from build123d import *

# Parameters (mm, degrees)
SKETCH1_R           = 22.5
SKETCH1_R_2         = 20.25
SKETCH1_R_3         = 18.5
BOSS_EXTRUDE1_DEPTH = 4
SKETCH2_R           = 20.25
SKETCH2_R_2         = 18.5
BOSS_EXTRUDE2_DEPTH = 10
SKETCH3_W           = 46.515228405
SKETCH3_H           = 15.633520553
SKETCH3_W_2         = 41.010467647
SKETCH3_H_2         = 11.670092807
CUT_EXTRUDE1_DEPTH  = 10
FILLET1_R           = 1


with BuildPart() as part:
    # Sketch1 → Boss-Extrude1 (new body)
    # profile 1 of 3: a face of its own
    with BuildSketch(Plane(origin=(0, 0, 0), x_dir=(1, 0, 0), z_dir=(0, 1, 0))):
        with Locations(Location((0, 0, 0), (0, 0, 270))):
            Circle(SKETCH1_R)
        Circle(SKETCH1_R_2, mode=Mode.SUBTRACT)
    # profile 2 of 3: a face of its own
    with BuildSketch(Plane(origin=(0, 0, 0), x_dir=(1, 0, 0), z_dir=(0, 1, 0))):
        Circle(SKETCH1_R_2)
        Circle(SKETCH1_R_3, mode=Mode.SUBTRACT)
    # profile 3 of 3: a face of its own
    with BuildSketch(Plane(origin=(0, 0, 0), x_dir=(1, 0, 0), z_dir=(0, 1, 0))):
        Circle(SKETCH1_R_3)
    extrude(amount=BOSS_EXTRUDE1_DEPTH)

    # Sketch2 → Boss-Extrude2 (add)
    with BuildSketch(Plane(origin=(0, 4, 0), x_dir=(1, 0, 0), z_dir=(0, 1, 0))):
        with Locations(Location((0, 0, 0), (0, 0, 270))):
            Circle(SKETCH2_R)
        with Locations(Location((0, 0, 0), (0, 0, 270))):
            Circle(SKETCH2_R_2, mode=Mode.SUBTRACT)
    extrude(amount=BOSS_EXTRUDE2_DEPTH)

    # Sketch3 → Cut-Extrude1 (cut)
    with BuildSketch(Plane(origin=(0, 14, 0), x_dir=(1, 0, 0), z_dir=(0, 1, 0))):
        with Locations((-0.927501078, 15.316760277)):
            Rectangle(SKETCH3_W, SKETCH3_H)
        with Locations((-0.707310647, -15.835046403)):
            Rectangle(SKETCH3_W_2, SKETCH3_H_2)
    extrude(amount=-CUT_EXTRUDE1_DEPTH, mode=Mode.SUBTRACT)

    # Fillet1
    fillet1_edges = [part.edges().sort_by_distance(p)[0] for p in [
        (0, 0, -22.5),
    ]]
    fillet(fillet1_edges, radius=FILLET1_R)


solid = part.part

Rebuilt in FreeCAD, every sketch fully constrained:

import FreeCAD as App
import Part
import Sketcher

V = App.Vector


def edges_at(feature, points):
    """Names of the edges that pass closest to the given points."""
    edges = feature.Shape.Edges
    near = lambda p: min(range(len(edges)), key=lambda i: edges[i].distToShape(Part.Vertex(*p))[0])
    return sorted({f"Edge{near(p) + 1}" for p in points})

doc = App.newDocument("Part")
params = doc.addObject("Spreadsheet::Sheet", "Params")
for row, (alias, value) in enumerate([
    ("sketch1_diameter", "45 mm"),
    ("pad1_length", "4 mm"),
    ("sketch2_diameter", "37 mm"),
    ("sketch2_diameter2", "40.5 mm"),
    ("pad2_length", "10 mm"),
    ("pocket1_length", "10 mm"),
    ("fillet_radius", "1 mm"),
], start=1):
    params.set(f"A{row}", alias)
    params.set(f"B{row}", "=" + value)
    params.setAlias(f"B{row}", alias)

body = doc.addObject("PartDesign::Body", "Body")

# Sketch on XZ plane
sketch1 = body.newObject("Sketcher::SketchObject", "Sketch")
sketch1.AttachmentSupport = (doc.getObject("XZ_Plane"), [""])
sketch1.MapMode = "FlatFace"
sketch1.addGeometry(Part.Circle(V(0, 0, 0), V(0, 0, 1), 22), False)
sketch1.addConstraint([
    Sketcher.Constraint("Coincident", 0, 3, -1, 1),
    Sketcher.Constraint("Diameter", 0, 45.0),
])
sketch1.setExpression("Constraints[1]", "Params.sketch1_diameter")
pad1 = body.newObject("PartDesign::Pad", "Pad")
pad1.Profile = sketch1
pad1.setExpression("Length", "Params.pad1_length")
pad1.Reversed = True

# Sketch on XZ plane
sketch2 = body.newObject("Sketcher::SketchObject", "Sketch001")
sketch2.AttachmentSupport = (doc.getObject("XZ_Plane"), [""])
sketch2.MapMode = "FlatFace"
sketch2.AttachmentOffset = App.Placement(V(0, 0, -4), App.Rotation())
sketch2.addGeometry([
    Part.Circle(V(0, 0, 0), V(0, 0, 1), 20),
    Part.Circle(V(0, 0, 0), V(0, 0, 1), 18),
], False)
sketch2.addConstraint([
    Sketcher.Constraint("Coincident", 0, 3, -1, 1),
    Sketcher.Constraint("Coincident", 1, 3, -1, 1),
    Sketcher.Constraint("Diameter", 1, 37.0),
    Sketcher.Constraint("Diameter", 0, 40.5),
])
sketch2.setExpression("Constraints[2]", "Params.sketch2_diameter")
sketch2.setExpression("Constraints[3]", "Params.sketch2_diameter2")
pad2 = body.newObject("PartDesign::Pad", "Pad001")
pad2.Profile = sketch2
pad2.setExpression("Length", "Params.pad2_length")
pad2.Reversed = True

# Sketch on XZ plane
sketch3 = body.newObject("Sketcher::SketchObject", "Sketch002")
sketch3.AttachmentSupport = (doc.getObject("XZ_Plane"), [""])
sketch3.MapMode = "FlatFace"
sketch3.AttachmentOffset = App.Placement(V(0, 0, -14), App.Rotation())
sketch3.addGeometry([
    Part.LineSegment(V(-24, -23, 0), V(-24, -8, 0)),  # 0
    Part.LineSegment(V(-24, -8, 0), V(22, -8, 0)),  # 1
    Part.LineSegment(V(22, -8, 0), V(22, -23, 0)),  # 2
    Part.LineSegment(V(22, -23, 0), V(-24, -23, 0)),  # 3
    Part.LineSegment(V(-21, 10, 0), V(-21, 22, 0)),  # 4
    Part.LineSegment(V(-21, 22, 0), V(20, 22, 0)),  # 5
    Part.LineSegment(V(20, 22, 0), V(20, 10, 0)),  # 6
    Part.LineSegment(V(20, 10, 0), V(-21, 10, 0)),  # 7
], False)
sketch3.addConstraint([
    Sketcher.Constraint("Coincident", 0, 2, 1, 1),
    Sketcher.Constraint("Coincident", 1, 2, 2, 1),
    Sketcher.Constraint("Coincident", 2, 2, 3, 1),
    Sketcher.Constraint("Coincident", 3, 2, 0, 1),
    Sketcher.Constraint("Coincident", 4, 2, 5, 1),
    Sketcher.Constraint("Coincident", 5, 2, 6, 1),
    Sketcher.Constraint("Coincident", 6, 2, 7, 1),
    Sketcher.Constraint("Coincident", 7, 2, 4, 1),
    Sketcher.Constraint("Vertical", 0),
    Sketcher.Constraint("Horizontal", 1),
    Sketcher.Constraint("Vertical", 2),
    Sketcher.Constraint("Horizontal", 3),
    Sketcher.Constraint("Vertical", 4),
    Sketcher.Constraint("Horizontal", 5),
    Sketcher.Constraint("Vertical", 6),
    Sketcher.Constraint("Horizontal", 7),
    Sketcher.Constraint("DistanceY", -1, 1, 6, 2, 10.0),
    Sketcher.Constraint("DistanceY", 0, 2, -1, 1, 7.5),
    Sketcher.Constraint("DistanceX", 1, 1, 1, 2, 46.515228),
    Sketcher.Constraint("DistanceY", 0, 1, 0, 2, 15.633521),
    Sketcher.Constraint("DistanceX", 5, 1, 5, 2, 41.010468),
    Sketcher.Constraint("DistanceY", 4, 1, 4, 2, 11.670093),
    Sketcher.Constraint("DistanceX", 0, 2, 4, 2, 2.972571),
    Sketcher.Constraint("DistanceX", 0, 2, -1, 1, 24.185115),
])
pocket1 = body.newObject("PartDesign::Pocket", "Pocket")
pocket1.Profile = sketch3
pocket1.setExpression("Length", "Params.pocket1_length")
pocket1.Reversed = True
doc.recompute()

fillet = body.newObject("PartDesign::Fillet", "Fillet")
fillet.Base = (pocket1, edges_at(pocket1, [(0, 0, -22.5)]))
fillet.setExpression("Radius", "Params.fillet_radius")

doc.recompute()
